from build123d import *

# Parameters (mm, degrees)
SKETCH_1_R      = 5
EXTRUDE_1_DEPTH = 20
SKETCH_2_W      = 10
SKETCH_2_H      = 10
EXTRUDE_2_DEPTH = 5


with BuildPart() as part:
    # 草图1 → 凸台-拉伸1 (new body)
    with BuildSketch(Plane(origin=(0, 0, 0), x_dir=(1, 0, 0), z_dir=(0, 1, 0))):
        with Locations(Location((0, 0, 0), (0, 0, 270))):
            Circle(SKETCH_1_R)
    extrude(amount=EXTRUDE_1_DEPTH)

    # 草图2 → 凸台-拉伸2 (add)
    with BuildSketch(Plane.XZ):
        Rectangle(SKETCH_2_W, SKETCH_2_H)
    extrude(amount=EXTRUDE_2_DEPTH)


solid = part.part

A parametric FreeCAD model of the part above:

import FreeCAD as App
import Part
import Sketcher
from FreeCAD import Vector
Q = App.Units.Quantity

doc = App.newDocument("Part")
body = doc.addObject("PartDesign::Body", "Body")

sketch1 = body.newObject("Sketcher::SketchObject", "Sketch")
sketch1.AttachmentSupport = (doc.getObject("XZ_Plane"), [""])
sketch1.MapMode = "FlatFace"
sketch1.addGeometry(Part.Circle(Vector(0, 0, 0), Vector(0, 0, 1), 5), False)
sketch1.addConstraint(Sketcher.Constraint("Coincident", 0, 3, -1, 1))
sketch1.addConstraint(Sketcher.Constraint("Diameter", 0, Q("10 mm")))
pad1 = body.newObject("PartDesign::Pad", "Pad")
pad1.Profile = sketch1
pad1.Length = 20
pad1.Reversed = True

sketch2 = body.newObject("Sketcher::SketchObject", "Sketch001")
sketch2.AttachmentSupport = (doc.getObject("XZ_Plane"), [""])
sketch2.MapMode = "FlatFace"
sketch2.addGeometry(Part.LineSegment(Vector(-5, 5, 0), Vector(-5, -5, 0)), False)
sketch2.addGeometry(Part.LineSegment(Vector(-5, -5, 0), Vector(5, -5, 0)), False)
sketch2.addGeometry(Part.LineSegment(Vector(5, -5, 0), Vector(5, 5, 0)), False)
sketch2.addGeometry(Part.LineSegment(Vector(5, 5, 0), Vector(-5, 5, 0)), False)
sketch2.addConstraint(Sketcher.Constraint("Coincident", 0, 2, 1, 1))
sketch2.addConstraint(Sketcher.Constraint("Coincident", 1, 2, 2, 1))
sketch2.addConstraint(Sketcher.Constraint("Coincident", 2, 2, 3, 1))
sketch2.addConstraint(Sketcher.Constraint("Coincident", 3, 2, 0, 1))
sketch2.addConstraint(Sketcher.Constraint("Vertical", 0))
sketch2.addConstraint(Sketcher.Constraint("Horizontal", 1))
sketch2.addConstraint(Sketcher.Constraint("Vertical", 2))
sketch2.addConstraint(Sketcher.Constraint("Horizontal", 3))
sketch2.addConstraint(Sketcher.Constraint("Symmetric", 0, 2, 2, 2, -1, 1))
sketch2.addConstraint(Sketcher.Constraint("Equal", 3, 0))
sketch2.addConstraint(Sketcher.Constraint("DistanceX", 1, 1, 1, 2, Q("10 mm")))
pad2 = body.newObject("PartDesign::Pad", "Pad001")
pad2.Profile = sketch2
pad2.Length = 5

doc.recompute()
